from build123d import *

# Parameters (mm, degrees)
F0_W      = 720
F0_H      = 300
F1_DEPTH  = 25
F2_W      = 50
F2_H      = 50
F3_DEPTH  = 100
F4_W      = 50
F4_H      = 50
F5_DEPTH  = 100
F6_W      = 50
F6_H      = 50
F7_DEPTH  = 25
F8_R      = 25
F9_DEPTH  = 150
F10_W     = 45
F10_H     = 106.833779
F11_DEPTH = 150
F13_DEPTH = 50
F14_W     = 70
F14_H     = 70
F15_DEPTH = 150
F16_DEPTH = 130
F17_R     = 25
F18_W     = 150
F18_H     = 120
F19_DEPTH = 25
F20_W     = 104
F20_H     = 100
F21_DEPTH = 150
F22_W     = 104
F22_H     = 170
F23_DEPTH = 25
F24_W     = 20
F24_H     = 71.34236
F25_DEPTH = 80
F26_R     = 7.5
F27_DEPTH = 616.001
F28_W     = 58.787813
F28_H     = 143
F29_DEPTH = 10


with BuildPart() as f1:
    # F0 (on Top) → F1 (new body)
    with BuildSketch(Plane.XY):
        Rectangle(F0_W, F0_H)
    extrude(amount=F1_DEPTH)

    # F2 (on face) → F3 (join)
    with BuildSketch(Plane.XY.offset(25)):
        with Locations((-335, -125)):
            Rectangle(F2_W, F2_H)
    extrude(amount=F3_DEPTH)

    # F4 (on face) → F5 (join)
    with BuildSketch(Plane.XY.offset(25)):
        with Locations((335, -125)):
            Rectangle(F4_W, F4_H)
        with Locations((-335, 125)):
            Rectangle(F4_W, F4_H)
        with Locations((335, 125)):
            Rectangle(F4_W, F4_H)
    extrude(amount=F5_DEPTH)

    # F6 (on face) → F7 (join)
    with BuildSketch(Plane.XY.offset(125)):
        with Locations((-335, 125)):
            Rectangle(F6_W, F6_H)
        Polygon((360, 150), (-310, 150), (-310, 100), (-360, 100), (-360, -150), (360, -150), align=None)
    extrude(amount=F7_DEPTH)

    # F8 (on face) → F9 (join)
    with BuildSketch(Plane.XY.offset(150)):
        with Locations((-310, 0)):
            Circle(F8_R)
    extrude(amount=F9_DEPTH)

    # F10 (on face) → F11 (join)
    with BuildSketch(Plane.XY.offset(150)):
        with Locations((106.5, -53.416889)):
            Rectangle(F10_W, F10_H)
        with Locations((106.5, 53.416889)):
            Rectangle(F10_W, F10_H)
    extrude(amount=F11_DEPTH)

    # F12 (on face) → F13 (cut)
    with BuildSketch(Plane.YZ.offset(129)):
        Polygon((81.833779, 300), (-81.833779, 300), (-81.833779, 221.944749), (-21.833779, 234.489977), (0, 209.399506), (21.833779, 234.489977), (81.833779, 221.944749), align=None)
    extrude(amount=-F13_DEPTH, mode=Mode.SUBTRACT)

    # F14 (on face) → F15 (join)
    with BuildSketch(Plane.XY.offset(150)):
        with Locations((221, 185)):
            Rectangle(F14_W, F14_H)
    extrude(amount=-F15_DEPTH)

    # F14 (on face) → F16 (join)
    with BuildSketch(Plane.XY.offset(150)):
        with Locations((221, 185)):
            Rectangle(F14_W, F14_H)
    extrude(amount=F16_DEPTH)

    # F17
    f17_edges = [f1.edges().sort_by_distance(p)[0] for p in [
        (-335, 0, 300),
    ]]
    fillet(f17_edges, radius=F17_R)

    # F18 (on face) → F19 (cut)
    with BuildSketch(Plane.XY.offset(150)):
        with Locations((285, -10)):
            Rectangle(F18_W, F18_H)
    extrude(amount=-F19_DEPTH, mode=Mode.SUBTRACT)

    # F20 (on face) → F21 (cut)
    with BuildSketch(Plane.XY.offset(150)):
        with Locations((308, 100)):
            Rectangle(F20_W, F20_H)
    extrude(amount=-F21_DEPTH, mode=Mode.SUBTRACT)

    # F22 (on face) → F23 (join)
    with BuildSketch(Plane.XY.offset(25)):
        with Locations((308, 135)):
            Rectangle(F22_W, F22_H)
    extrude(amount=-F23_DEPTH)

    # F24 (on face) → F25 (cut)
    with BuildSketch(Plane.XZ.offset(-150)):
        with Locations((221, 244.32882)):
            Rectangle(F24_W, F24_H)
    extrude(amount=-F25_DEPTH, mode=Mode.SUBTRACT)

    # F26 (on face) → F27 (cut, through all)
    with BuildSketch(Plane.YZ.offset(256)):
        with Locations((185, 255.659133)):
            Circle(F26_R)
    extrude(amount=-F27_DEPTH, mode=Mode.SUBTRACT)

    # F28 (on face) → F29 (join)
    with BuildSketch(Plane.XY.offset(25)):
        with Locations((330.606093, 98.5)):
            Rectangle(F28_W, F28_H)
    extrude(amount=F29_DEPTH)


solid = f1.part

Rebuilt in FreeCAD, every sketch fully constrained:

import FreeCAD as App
import Part
import Sketcher


def edges_at(feature, points):
    """Names of the edges that pass closest to the given points."""
    edges = feature.Shape.Edges
    near = lambda p: min(range(len(edges)), key=lambda i: edges[i].distToShape(Part.Vertex(*p))[0])
    return sorted({f"Edge{near(p) + 1}" for p in points})


def add_polygon(sketch, points):
    """Adds a closed chain of lines whose ends are joined by coincident constraints."""
    first, n = sketch.GeometryCount, len(points)
    for a, b in zip(points, points[1:] + points[:1]):
        sketch.addGeometry(Part.LineSegment(App.Vector(*a, 0), App.Vector(*b, 0)), False)
    for i in range(n):
        sketch.addConstraint(Sketcher.Constraint("Coincident", first + i, 2, first + (i + 1) % n, 1))

doc = App.newDocument("Part")
body = doc.addObject("PartDesign::Body", "Body")

# Sketch on XY plane
sketch1 = body.newObject("Sketcher::SketchObject", "Sketch")
sketch1.AttachmentSupport = (doc.getObject("XY_Plane"), [""])
sketch1.MapMode = "FlatFace"
add_polygon(sketch1, [(-360, 150), (-360, -150), (360, -150), (360, 150)])  # lines 0-3
sketch1.addConstraint([
    Sketcher.Constraint("Vertical", 0),
    Sketcher.Constraint("Horizontal", 1),
    Sketcher.Constraint("Vertical", 2),
    Sketcher.Constraint("Horizontal", 3),
    Sketcher.Constraint("Symmetric", 0, 2, 2, 2, -1, 1),
    Sketcher.Constraint("DistanceX", 1, 1, 1, 2, 720.0),
    Sketcher.Constraint("DistanceY", 0, 2, 0, 1, 300.0),
])
pad1 = body.newObject("PartDesign::Pad", "Pad")
pad1.Profile = sketch1
pad1.Length = 25

# Sketch on XY plane
sketch2 = body.newObject("Sketcher::SketchObject", "Sketch001")
sketch2.AttachmentSupport = (doc.getObject("XY_Plane"), [""])
sketch2.MapMode = "FlatFace"
sketch2.AttachmentOffset = App.Placement(App.Vector(0, 0, 25), App.Rotation())
add_polygon(sketch2, [(-360, -100), (-360, -150), (-310, -150), (-310, -100)])  # lines 0-3
sketch2.addConstraint([
    Sketcher.Constraint("Vertical", 0),
    Sketcher.Constraint("Horizontal", 1),
    Sketcher.Constraint("Vertical", 2),
    Sketcher.Constraint("Horizontal", 3),
    Sketcher.Constraint("Equal", 3, 0),
    Sketcher.Constraint("DistanceX", 1, 1, 1, 2, 50.0),
    Sketcher.Constraint("DistanceX", 0, 2, -1, 1, 360.0),
    Sketcher.Constraint("DistanceY", 0, 2, -1, 1, 150.0),
])
pad2 = body.newObject("PartDesign::Pad", "Pad001")
pad2.Profile = sketch2
pad2.Length = 100

# Sketch on XY plane
sketch3 = body.newObject("Sketcher::SketchObject", "Sketch002")
sketch3.AttachmentSupport = (doc.getObject("XY_Plane"), [""])
sketch3.MapMode = "FlatFace"
sketch3.AttachmentOffset = App.Placement(App.Vector(0, 0, 25), App.Rotation())
add_polygon(sketch3, [(310, -100), (310, -150), (360, -150), (360, -100)])  # lines 0-3
add_polygon(sketch3, [(-360, 150), (-360, 100), (-310, 100), (-310, 150)])  # lines 4-7
add_polygon(sketch3, [(310, 150), (310, 100), (360, 100), (360, 150)])  # lines 8-11
sketch3.addConstraint([
    Sketcher.Constraint("Vertical", 0),
    Sketcher.Constraint("Horizontal", 1),
    Sketcher.Constraint("Vertical", 2),
    Sketcher.Constraint("Horizontal", 3),
    Sketcher.Constraint("Vertical", 4),
    Sketcher.Constraint("Horizontal", 5),
    Sketcher.Constraint("Vertical", 6),
    Sketcher.Constraint("Horizontal", 7),
    Sketcher.Constraint("Vertical", 8),
    Sketcher.Constraint("Horizontal", 9),
    Sketcher.Constraint("Vertical", 10),
    Sketcher.Constraint("Horizontal", 11),
    Sketcher.Constraint("Symmetric", 2, 2, 4, 2, -1, 1),
    Sketcher.Constraint("Symmetric", 0, 2, 6, 2, -1, 1),
    Sketcher.Constraint("Symmetric", 5, 2, 8, 2, -2),
    Sketcher.Constraint("Symmetric", 7, 2, 10, 2, -2),
    Sketcher.Constraint("Equal", 11, 0),
    Sketcher.Constraint("DistanceX", 1, 1, 1, 2, 50.0),
    Sketcher.Constraint("DistanceX", -1, 1, 0, 2, 310.0),
    Sketcher.Constraint("DistanceY", 0, 2, -1, 1, 150.0),
])
pad3 = body.newObject("PartDesign::Pad", "Pad002")
pad3.Profile = sketch3
pad3.Length = 100

# Sketch on XY plane
sketch4 = body.newObject("Sketcher::SketchObject", "Sketch003")
sketch4.AttachmentSupport = (doc.getObject("XY_Plane"), [""])
sketch4.MapMode = "FlatFace"
sketch4.AttachmentOffset = App.Placement(App.Vector(0, 0, 125), App.Rotation())
add_polygon(sketch4, [(-360, 150), (-360, -150), (360, -150), (360, 150)])  # lines 0-3
sketch4.addConstraint([
    Sketcher.Constraint("Vertical", 0),
    Sketcher.Constraint("Horizontal", 1),
    Sketcher.Constraint("Vertical", 2),
    Sketcher.Constraint("Horizontal", 3),
    Sketcher.Constraint("Symmetric", 0, 2, 2, 2, -1, 1),
    Sketcher.Constraint("DistanceX", 1, 1, 1, 2, 720.0),
    Sketcher.Constraint("DistanceY", 0, 2, 0, 1, 300.0),
])
pad4 = body.newObject("PartDesign::Pad", "Pad003")
pad4.Profile = sketch4
pad4.Length = 25

# Sketch on XY plane
sketch5 = body.newObject("Sketcher::SketchObject", "Sketch004")
sketch5.AttachmentSupport = (doc.getObject("XY_Plane"), [""])
sketch5.MapMode = "FlatFace"
sketch5.AttachmentOffset = App.Placement(App.Vector(0, 0, 150), App.Rotation())
sketch5.addGeometry(Part.Circle(App.Vector(-310, 0, 0), App.Vector(0, 0, 1), 25), False)
sketch5.addConstraint([
    Sketcher.Constraint("PointOnObject", 0, 3, -1),
    Sketcher.Constraint("Diameter", 0, 50.0),
    Sketcher.Constraint("DistanceX", 0, 3, -1, 1, 310.0),
])
pad5 = body.newObject("PartDesign::Pad", "Pad004")
pad5.Profile = sketch5
pad5.Length = 150

# Sketch on XY plane
sketch6 = body.newObject("Sketcher::SketchObject", "Sketch005")
sketch6.AttachmentSupport = (doc.getObject("XY_Plane"), [""])
sketch6.MapMode = "FlatFace"
sketch6.AttachmentOffset = App.Placement(App.Vector(0, 0, 150), App.Rotation())
add_polygon(sketch6, [(84, -107), (129, -107), (129, 107), (84, 107)])  # lines 0-3
sketch6.addConstraint([
    Sketcher.Constraint("Horizontal", 0),
    Sketcher.Constraint("Vertical", 1),
    Sketcher.Constraint("Horizontal", 2),
    Sketcher.Constraint("Vertical", 3),
    Sketcher.Constraint("DistanceX", 0, 1, 0, 2, 45.0),
    Sketcher.Constraint("DistanceX", -1, 1, 0, 2, 129.0),
    Sketcher.Constraint("DistanceY", 1, 1, 1, 2, 213.667557),
    Sketcher.Constraint("DistanceY", 0, 2, -1, 1, 106.833778),
])
pad6 = body.newObject("PartDesign::Pad", "Pad005")
pad6.Profile = sketch6
pad6.Length = 150

# Sketch on YZ plane
sketch7 = body.newObject("Sketcher::SketchObject", "Sketch006")
sketch7.AttachmentSupport = (doc.getObject("YZ_Plane"), [""])
sketch7.MapMode = "FlatFace"
sketch7.AttachmentOffset = App.Placement(App.Vector(0, 0, 129), App.Rotation())
add_polygon(sketch7, [(82, 300), (-82, 300), (-82, 222), (-22, 234), (0, 209), (22, 234), (82, 222)])  # lines 0-6
sketch7.addConstraint([
    Sketcher.Constraint("Horizontal", 0),
    Sketcher.Constraint("Vertical", 1),
    Sketcher.Constraint("Vertical", 6),
    Sketcher.Constraint("Symmetric", 2, 2, 4, 2, -2),
    Sketcher.Constraint("Symmetric", 1, 2, 5, 2, -2),
    Sketcher.Constraint("PointOnObject", 3, 2, -2),
    Sketcher.Constraint("DistanceY", -1, 1, 0, 2, 300.0),
    Sketcher.Constraint("DistanceX", 1, 2, 2, 2, 60.0),
    Sketcher.Constraint("DistanceX", 0, 2, 0, 1, 163.667558),
    Sketcher.Constraint("DistanceY", 1, 2, 1, 1, 78.055251),
    Sketcher.Constraint("Distance", 3, 33.260271),
    Sketcher.Constraint("DistanceY", 1, 2, 2, 2, 12.545228),
])
pocket1 = body.newObject("PartDesign::Pocket", "Pocket")
pocket1.Profile = sketch7
pocket1.Length = 50

# Sketch on XY plane
sketch8 = body.newObject("Sketcher::SketchObject", "Sketch007")
sketch8.AttachmentSupport = (doc.getObject("XY_Plane"), [""])
sketch8.MapMode = "FlatFace"
sketch8.AttachmentOffset = App.Placement(App.Vector(0, 0, 150), App.Rotation())
add_polygon(sketch8, [(186, 220), (186, 150), (256, 150), (256, 220)])  # lines 0-3
sketch8.addConstraint([
    Sketcher.Constraint("Vertical", 0),
    Sketcher.Constraint("Horizontal", 1),
    Sketcher.Constraint("Vertical", 2),
    Sketcher.Constraint("Horizontal", 3),
    Sketcher.Constraint("Equal", 3, 0),
    Sketcher.Constraint("DistanceX", 1, 1, 1, 2, 70.0),
    Sketcher.Constraint("DistanceX", -1, 1, 0, 2, 186.0),
    Sketcher.Constraint("DistanceY", -1, 1, 0, 2, 150.0),
])
pad7 = body.newObject("PartDesign::Pad", "Pad006")
pad7.Profile = sketch8
pad7.Length = 150
pad7.Reversed = True

# Sketch on XY plane
sketch9 = body.newObject("Sketcher::SketchObject", "Sketch008")
sketch9.AttachmentSupport = (doc.getObject("XY_Plane"), [""])
sketch9.MapMode = "FlatFace"
sketch9.AttachmentOffset = App.Placement(App.Vector(0, 0, 150), App.Rotation())
add_polygon(sketch9, [(186, 220), (186, 150), (256, 150), (256, 220)])  # lines 0-3
sketch9.addConstraint([
    Sketcher.Constraint("Vertical", 0),
    Sketcher.Constraint("Horizontal", 1),
    Sketcher.Constraint("Vertical", 2),
    Sketcher.Constraint("Horizontal", 3),
    Sketcher.Constraint("Equal", 3, 0),
    Sketcher.Constraint("DistanceX", 1, 1, 1, 2, 70.0),
    Sketcher.Constraint("DistanceX", -1, 1, 0, 2, 186.0),
    Sketcher.Constraint("DistanceY", -1, 1, 0, 2, 150.0),
])
pad8 = body.newObject("PartDesign::Pad", "Pad007")
pad8.Profile = sketch9
pad8.Length = 130
doc.recompute()

fillet = body.newObject("PartDesign::Fillet", "Fillet")
fillet.Base = (pad8, edges_at(pad8, [(-335, 0, 300)]))
fillet.Radius = 25

# Sketch on XY plane
sketch10 = body.newObject("Sketcher::SketchObject", "Sketch009")
sketch10.AttachmentSupport = (doc.getObject("XY_Plane"), [""])
sketch10.MapMode = "FlatFace"
sketch10.AttachmentOffset = App.Placement(App.Vector(0, 0, 150), App.Rotation())
add_polygon(sketch10, [(210, 50), (210, -70), (360, -70), (360, 50)])  # lines 0-3
sketch10.addConstraint([
    Sketcher.Constraint("Vertical", 0),
    Sketcher.Constraint("Horizontal", 1),
    Sketcher.Constraint("Vertical", 2),
    Sketcher.Constraint("Horizontal", 3),
    Sketcher.Constraint("DistanceX", 1, 1, 1, 2, 150.0),
    Sketcher.Constraint("DistanceY", 0, 2, 0, 1, 120.0),
    Sketcher.Constraint("DistanceX", -1, 1, 0, 2, 210.0),
    Sketcher.Constraint("DistanceY", 0, 2, -1, 1, 70.0),
])
pocket2 = body.newObject("PartDesign::Pocket", "Pocket001")
pocket2.Profile = sketch10
pocket2.Length = 25

# Sketch on XY plane
sketch11 = body.newObject("Sketcher::SketchObject", "Sketch010")
sketch11.AttachmentSupport = (doc.getObject("XY_Plane"), [""])
sketch11.MapMode = "FlatFace"
sketch11.AttachmentOffset = App.Placement(App.Vector(0, 0, 150), App.Rotation())
add_polygon(sketch11, [(256, 150), (256, 50), (360, 50), (360, 150)])  # lines 0-3
sketch11.addConstraint([
    Sketcher.Constraint("Vertical", 0),
    Sketcher.Constraint("Horizontal", 1),
    Sketcher.Constraint("Vertical", 2),
    Sketcher.Constraint("Horizontal", 3),
    Sketcher.Constraint("DistanceX", 1, 1, 1, 2, 104.0),
    Sketcher.Constraint("DistanceY", 0, 2, 0, 1, 100.0),
    Sketcher.Constraint("DistanceX", -1, 1, 0, 2, 256.0),
    Sketcher.Constraint("DistanceY", -1, 1, 0, 2, 50.0),
])
pocket3 = body.newObject("PartDesign::Pocket", "Pocket002")
pocket3.Profile = sketch11
pocket3.Length = 150

# Sketch on XY plane
sketch12 = body.newObject("Sketcher::SketchObject", "Sketch011")
sketch12.AttachmentSupport = (doc.getObject("XY_Plane"), [""])
sketch12.MapMode = "FlatFace"
sketch12.AttachmentOffset = App.Placement(App.Vector(0, 0, 25), App.Rotation())
add_polygon(sketch12, [(256, 220), (256, 50), (360, 50), (360, 220)])  # lines 0-3
sketch12.addConstraint([
    Sketcher.Constraint("Vertical", 0),
    Sketcher.Constraint("Horizontal", 1),
    Sketcher.Constraint("Vertical", 2),
    Sketcher.Constraint("Horizontal", 3),
    Sketcher.Constraint("DistanceX", 1, 1, 1, 2, 104.0),
    Sketcher.Constraint("DistanceY", 0, 2, 0, 1, 170.0),
    Sketcher.Constraint("DistanceX", -1, 1, 0, 2, 256.0),
    Sketcher.Constraint("DistanceY", -1, 1, 0, 2, 50.0),
])
pad9 = body.newObject("PartDesign::Pad", "Pad008")
pad9.Profile = sketch12
pad9.Length = 25
pad9.Reversed = True

# Sketch on XZ plane
sketch13 = body.newObject("Sketcher::SketchObject", "Sketch012")
sketch13.AttachmentSupport = (doc.getObject("XZ_Plane"), [""])
sketch13.MapMode = "FlatFace"
sketch13.AttachmentOffset = App.Placement(App.Vector(0, 0, -150), App.Rotation())
add_polygon(sketch13, [(211, 280), (211, 209), (231, 209), (231, 280)])  # lines 0-3
sketch13.addConstraint([
    Sketcher.Constraint("Vertical", 0),
    Sketcher.Constraint("Horizontal", 1),
    Sketcher.Constraint("Vertical", 2),
    Sketcher.Constraint("Horizontal", 3),
    Sketcher.Constraint("DistanceX", 1, 1, 1, 2, 20.0),
    Sketcher.Constraint("DistanceX", -1, 1, 0, 2, 211.0),
    Sketcher.Constraint("DistanceY", -1, 1, 2, 2, 280.0),
    Sketcher.Constraint("DistanceY", 0, 2, 0, 1, 71.34236),
])
pocket4 = body.newObject("PartDesign::Pocket", "Pocket003")
pocket4.Profile = sketch13
pocket4.Length = 80

# Sketch on YZ plane
sketch14 = body.newObject("Sketcher::SketchObject", "Sketch013")
sketch14.AttachmentSupport = (doc.getObject("YZ_Plane"), [""])
sketch14.MapMode = "FlatFace"
sketch14.AttachmentOffset = App.Placement(App.Vector(0, 0, 256), App.Rotation())
sketch14.addGeometry(Part.Circle(App.Vector(185, 256, 0), App.Vector(0, 0, 1), 8), False)
sketch14.addConstraint([
    Sketcher.Constraint("Diameter", 0, 15.0),
    Sketcher.Constraint("DistanceX", -1, 1, 0, 3, 185.0),
    Sketcher.Constraint("DistanceY", -1, 1, 0, 3, 255.659133),
])
pocket5 = body.newObject("PartDesign::Pocket", "Pocket004")
pocket5.Profile = sketch14
pocket5.Type = "ThroughAll"

# Sketch on XY plane
sketch15 = body.newObject("Sketcher::SketchObject", "Sketch014")
sketch15.AttachmentSupport = (doc.getObject("XY_Plane"), [""])
sketch15.MapMode = "FlatFace"
sketch15.AttachmentOffset = App.Placement(App.Vector(0, 0, 25), App.Rotation())
add_polygon(sketch15, [(301, 170), (301, 27), (360, 27), (360, 170)])  # lines 0-3
sketch15.addConstraint([
    Sketcher.Constraint("Vertical", 0),
    Sketcher.Constraint("Horizontal", 1),
    Sketcher.Constraint("Vertical", 2),
    Sketcher.Constraint("Horizontal", 3),
    Sketcher.Constraint("DistanceY", 0, 2, 0, 1, 143.0),
    Sketcher.Constraint("DistanceY", -1, 1, 0, 2, 27.0),
    Sketcher.Constraint("DistanceX", -1, 1, 1, 2, 360.0),
    Sketcher.Constraint("DistanceX", 1, 1, 1, 2, 58.787813),
])
pad10 = body.newObject("PartDesign::Pad", "Pad009")
pad10.Profile = sketch15
pad10.Length = 10

doc.recompute()
